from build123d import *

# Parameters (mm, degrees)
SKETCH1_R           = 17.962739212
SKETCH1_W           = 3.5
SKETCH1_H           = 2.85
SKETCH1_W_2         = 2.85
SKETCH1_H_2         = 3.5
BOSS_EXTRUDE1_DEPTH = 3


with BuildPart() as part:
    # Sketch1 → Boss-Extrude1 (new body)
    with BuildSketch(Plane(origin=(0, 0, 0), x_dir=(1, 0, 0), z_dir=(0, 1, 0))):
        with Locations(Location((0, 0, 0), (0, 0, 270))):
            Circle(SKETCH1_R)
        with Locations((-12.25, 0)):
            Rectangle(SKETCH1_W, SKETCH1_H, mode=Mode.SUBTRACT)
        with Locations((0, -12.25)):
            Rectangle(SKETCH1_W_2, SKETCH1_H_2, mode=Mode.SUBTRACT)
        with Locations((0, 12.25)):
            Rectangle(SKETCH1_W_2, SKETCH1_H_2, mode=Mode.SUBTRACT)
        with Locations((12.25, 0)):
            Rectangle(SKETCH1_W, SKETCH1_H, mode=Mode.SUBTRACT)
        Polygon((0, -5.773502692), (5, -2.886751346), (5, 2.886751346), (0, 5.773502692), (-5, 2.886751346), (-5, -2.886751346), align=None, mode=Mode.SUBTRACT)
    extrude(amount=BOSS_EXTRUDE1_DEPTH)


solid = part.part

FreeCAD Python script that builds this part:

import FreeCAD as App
import Part
import Sketcher

V = App.Vector
Q = App.Units.Quantity

doc = App.newDocument("Part")
body = doc.addObject("PartDesign::Body", "Body")

sketch1 = body.newObject("Sketcher::SketchObject", "Sketch")
sketch1.AttachmentSupport = (doc.getObject("XZ_Plane"), [""])
sketch1.MapMode = "FlatFace"
sketch1.addGeometry(Part.Circle(V(0, 0, 0), V(0, 0, 1), 18), False)
sketch1.addGeometry(Part.LineSegment(V(1.4, -10.5, 0), V(-1.4, -10.5, 0)), False)
sketch1.addGeometry(Part.LineSegment(V(-1.4, -10.5, 0), V(-1.4, -14, 0)), False)
sketch1.addGeometry(Part.LineSegment(V(-1.4, -14, 0), V(1.4, -14, 0)), False)
sketch1.addGeometry(Part.LineSegment(V(1.4, -14, 0), V(1.4, -10.5, 0)), False)
sketch1.addGeometry(Part.LineSegment(V(-10.5, 1.4, 0), V(-14, 1.4, 0)), False)
sketch1.addGeometry(Part.LineSegment(V(-14, 1.4, 0), V(-14, -1.4, 0)), False)
sketch1.addGeometry(Part.LineSegment(V(-14, -1.4, 0), V(-10.5, -1.4, 0)), False)
sketch1.addGeometry(Part.LineSegment(V(-10.5, -1.4, 0), V(-10.5, 1.4, 0)), False)
sketch1.addGeometry(Part.LineSegment(V(14, 1.4, 0), V(10.5, 1.4, 0)), False)
sketch1.addGeometry(Part.LineSegment(V(10.5, 1.4, 0), V(10.5, -1.4, 0)), False)
sketch1.addGeometry(Part.LineSegment(V(10.5, -1.4, 0), V(14, -1.4, 0)), False)
sketch1.addGeometry(Part.LineSegment(V(14, -1.4, 0), V(14, 1.4, 0)), False)
sketch1.addGeometry(Part.LineSegment(V(5, 2.9, 0), V(0, 5.8, 0)), False)
sketch1.addGeometry(Part.LineSegment(V(0, 5.8, 0), V(-5, 2.9, 0)), False)
sketch1.addGeometry(Part.LineSegment(V(-5, 2.9, 0), V(-5, -2.9, 0)), False)
sketch1.addGeometry(Part.LineSegment(V(-5, -2.9, 0), V(0, -5.8, 0)), False)
sketch1.addGeometry(Part.LineSegment(V(0, -5.8, 0), V(5, -2.9, 0)), False)
sketch1.addGeometry(Part.LineSegment(V(5, -2.9, 0), V(5, 2.9, 0)), False)
sketch1.addGeometry(Part.LineSegment(V(1.4, 14, 0), V(-1.4, 14, 0)), False)
sketch1.addGeometry(Part.LineSegment(V(-1.4, 14, 0), V(-1.4, 10.5, 0)), False)
sketch1.addGeometry(Part.LineSegment(V(-1.4, 10.5, 0), V(1.4, 10.5, 0)), False)
sketch1.addGeometry(Part.LineSegment(V(1.4, 10.5, 0), V(1.4, 14, 0)), False)
sketch1.addConstraint(Sketcher.Constraint("Coincident", 1, 2, 2, 1))
sketch1.addConstraint(Sketcher.Constraint("Coincident", 2, 2, 3, 1))
sketch1.addConstraint(Sketcher.Constraint("Coincident", 3, 2, 4, 1))
sketch1.addConstraint(Sketcher.Constraint("Coincident", 4, 2, 1, 1))
sketch1.addConstraint(Sketcher.Constraint("Coincident", 5, 2, 6, 1))
sketch1.addConstraint(Sketcher.Constraint("Coincident", 6, 2, 7, 1))
sketch1.addConstraint(Sketcher.Constraint("Coincident", 7, 2, 8, 1))
sketch1.addConstraint(Sketcher.Constraint("Coincident", 8, 2, 5, 1))
sketch1.addConstraint(Sketcher.Constraint("Coincident", 9, 2, 10, 1))
sketch1.addConstraint(Sketcher.Constraint("Coincident", 10, 2, 11, 1))
sketch1.addConstraint(Sketcher.Constraint("Coincident", 11, 2, 12, 1))
sketch1.addConstraint(Sketcher.Constraint("Coincident", 12, 2, 9, 1))
sketch1.addConstraint(Sketcher.Constraint("Coincident", 13, 2, 14, 1))
sketch1.addConstraint(Sketcher.Constraint("Coincident", 14, 2, 15, 1))
sketch1.addConstraint(Sketcher.Constraint("Coincident", 15, 2, 16, 1))
sketch1.addConstraint(Sketcher.Constraint("Coincident", 16, 2, 17, 1))
sketch1.addConstraint(Sketcher.Constraint("Coincident", 17, 2, 18, 1))
sketch1.addConstraint(Sketcher.Constraint("Coincident", 18, 2, 13, 1))
sketch1.addConstraint(Sketcher.Constraint("Coincident", 19, 2, 20, 1))
sketch1.addConstraint(Sketcher.Constraint("Coincident", 20, 2, 21, 1))
sketch1.addConstraint(Sketcher.Constraint("Coincident", 21, 2, 22, 1))
sketch1.addConstraint(Sketcher.Constraint("Coincident", 22, 2, 19, 1))
sketch1.addConstraint(Sketcher.Constraint("Horizontal", 1))
sketch1.addConstraint(Sketcher.Constraint("Vertical", 2))
sketch1.addConstraint(Sketcher.Constraint("Horizontal", 3))
sketch1.addConstraint(Sketcher.Constraint("Vertical", 4))
sketch1.addConstraint(Sketcher.Constraint("Horizontal", 5))
sketch1.addConstraint(Sketcher.Constraint("Vertical", 6))
sketch1.addConstraint(Sketcher.Constraint("Horizontal", 7))
sketch1.addConstraint(Sketcher.Constraint("Vertical", 8))
sketch1.addConstraint(Sketcher.Constraint("Horizontal", 9))
sketch1.addConstraint(Sketcher.Constraint("Vertical", 10))
sketch1.addConstraint(Sketcher.Constraint("Horizontal", 11))
sketch1.addConstraint(Sketcher.Constraint("Vertical", 12))
sketch1.addConstraint(Sketcher.Constraint("Vertical", 15))
sketch1.addConstraint(Sketcher.Constraint("Vertical", 18))
sketch1.addConstraint(Sketcher.Constraint("Horizontal", 19))
sketch1.addConstraint(Sketcher.Constraint("Vertical", 20))
sketch1.addConstraint(Sketcher.Constraint("Horizontal", 21))
sketch1.addConstraint(Sketcher.Constraint("Vertical", 22))
sketch1.addConstraint(Sketcher.Constraint("Coincident", 0, 3, -1, 1))
sketch1.addConstraint(Sketcher.Constraint("Symmetric", 7, 2, 9, 2, -1, 1))
sketch1.addConstraint(Sketcher.Constraint("Symmetric", 5, 2, 11, 2, -1, 1))
sketch1.addConstraint(Sketcher.Constraint("Symmetric", 13, 2, 16, 2, -1, 1))
sketch1.addConstraint(Sketcher.Constraint("Symmetric", 14, 2, 17, 2, -1, 1))
sketch1.addConstraint(Sketcher.Constraint("Symmetric", 3, 2, 19, 2, -1, 1))
sketch1.addConstraint(Sketcher.Constraint("Symmetric", 1, 2, 21, 2, -1, 1))
sketch1.addConstraint(Sketcher.Constraint("PointOnObject", 13, 2, -2))
sketch1.addConstraint(Sketcher.Constraint("Parallel", 13, 16))
sketch1.addConstraint(Sketcher.Constraint("Horizontal", 8, 2, 9, 2))
sketch1.addConstraint(Sketcher.Constraint("Horizontal", 15, 2, 17, 2))
sketch1.addConstraint(Sketcher.Constraint("Vertical", 2, 2, 19, 2))
sketch1.addConstraint(Sketcher.Constraint("Equal", 11, 2))
sketch1.addConstraint(Sketcher.Constraint("Equal", 21, 6))
sketch1.addConstraint(Sketcher.Constraint("Angle", 13, Q("150 deg")))
sketch1.addConstraint(Sketcher.Constraint("DistanceX", 5, 2, 5, 1, 3.5))
sketch1.addConstraint(Sketcher.Constraint("DistanceY", 2, 2, -1, 1, 14.0))
sketch1.addConstraint(Sketcher.Constraint("DistanceX", 5, 2, -1, 1, 14.0))
sketch1.addConstraint(Sketcher.Constraint("DistanceX", 14, 2, -1, 1, 5.0))
sketch1.addConstraint(Sketcher.Constraint("DistanceX", 1, 2, 1, 1, 2.85))
sketch1.addConstraint(Sketcher.Constraint("Diameter", 0, 35.925478))
sketch1.addConstraint(Sketcher.Constraint("DistanceY", 15, 2, 15, 1, 5.773503))
pad1 = body.newObject("PartDesign::Pad", "Pad")
pad1.Profile = sketch1
pad1.Length = 3
pad1.Reversed = True

doc.recompute()
